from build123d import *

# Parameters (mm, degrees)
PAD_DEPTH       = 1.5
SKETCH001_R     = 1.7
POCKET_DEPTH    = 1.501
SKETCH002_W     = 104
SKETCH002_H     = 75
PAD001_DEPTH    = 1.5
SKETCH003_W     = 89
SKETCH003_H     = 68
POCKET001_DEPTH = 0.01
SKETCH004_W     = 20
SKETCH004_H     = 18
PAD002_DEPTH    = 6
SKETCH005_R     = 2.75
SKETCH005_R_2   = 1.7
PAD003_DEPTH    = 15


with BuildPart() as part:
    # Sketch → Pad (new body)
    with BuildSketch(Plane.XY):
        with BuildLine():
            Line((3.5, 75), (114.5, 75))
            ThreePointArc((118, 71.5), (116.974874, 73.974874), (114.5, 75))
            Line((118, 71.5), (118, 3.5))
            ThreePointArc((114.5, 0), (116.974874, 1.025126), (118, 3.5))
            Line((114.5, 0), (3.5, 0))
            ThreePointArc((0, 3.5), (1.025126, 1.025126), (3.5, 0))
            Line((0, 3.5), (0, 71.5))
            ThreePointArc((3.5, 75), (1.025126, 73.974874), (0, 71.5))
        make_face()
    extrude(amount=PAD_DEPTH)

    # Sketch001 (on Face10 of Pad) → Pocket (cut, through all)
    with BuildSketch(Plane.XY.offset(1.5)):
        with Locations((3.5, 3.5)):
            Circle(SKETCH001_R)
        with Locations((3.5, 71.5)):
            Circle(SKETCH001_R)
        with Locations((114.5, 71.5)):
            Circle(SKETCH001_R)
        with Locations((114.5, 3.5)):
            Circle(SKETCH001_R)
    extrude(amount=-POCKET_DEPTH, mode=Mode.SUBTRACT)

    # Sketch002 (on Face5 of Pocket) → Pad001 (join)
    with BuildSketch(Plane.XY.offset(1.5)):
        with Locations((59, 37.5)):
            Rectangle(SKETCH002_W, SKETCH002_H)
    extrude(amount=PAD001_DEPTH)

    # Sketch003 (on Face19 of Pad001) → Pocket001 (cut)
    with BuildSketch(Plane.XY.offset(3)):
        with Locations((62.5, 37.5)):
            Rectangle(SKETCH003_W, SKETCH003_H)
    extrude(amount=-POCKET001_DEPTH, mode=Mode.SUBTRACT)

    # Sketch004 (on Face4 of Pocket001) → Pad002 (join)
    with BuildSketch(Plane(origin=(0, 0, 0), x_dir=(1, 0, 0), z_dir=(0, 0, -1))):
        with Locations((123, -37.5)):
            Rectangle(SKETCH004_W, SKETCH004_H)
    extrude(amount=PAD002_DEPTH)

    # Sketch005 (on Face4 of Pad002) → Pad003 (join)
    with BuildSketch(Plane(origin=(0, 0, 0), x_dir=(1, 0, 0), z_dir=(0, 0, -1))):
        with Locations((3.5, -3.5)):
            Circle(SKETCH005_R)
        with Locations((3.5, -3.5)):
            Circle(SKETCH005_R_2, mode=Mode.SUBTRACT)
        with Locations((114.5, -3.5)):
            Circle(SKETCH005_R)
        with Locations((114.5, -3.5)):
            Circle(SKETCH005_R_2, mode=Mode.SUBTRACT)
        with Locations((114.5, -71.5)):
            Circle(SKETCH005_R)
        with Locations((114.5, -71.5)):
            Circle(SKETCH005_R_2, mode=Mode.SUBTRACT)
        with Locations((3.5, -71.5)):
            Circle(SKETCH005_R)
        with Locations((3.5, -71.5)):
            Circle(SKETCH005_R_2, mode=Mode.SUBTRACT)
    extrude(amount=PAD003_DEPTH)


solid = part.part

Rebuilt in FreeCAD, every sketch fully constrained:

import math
import FreeCAD as App
import Part
import Sketcher
Q = App.Units.Quantity


def add_polygon(sketch, points):
    """Adds a closed chain of lines whose ends are joined by coincident constraints."""
    first, n = sketch.GeometryCount, len(points)
    for a, b in zip(points, points[1:] + points[:1]):
        sketch.addGeometry(Part.LineSegment(App.Vector(*a, 0), App.Vector(*b, 0)), False)
    for i in range(n):
        sketch.addConstraint(Sketcher.Constraint("Coincident", first + i, 2, first + (i + 1) % n, 1))

doc = App.newDocument("Part")
body = doc.addObject("PartDesign::Body", "Body")

sketch1 = body.newObject("Sketcher::SketchObject", "Sketch")
sketch1.AttachmentSupport = (doc.getObject("XY_Plane"), [""])
sketch1.MapMode = "FlatFace"
sketch1.addGeometry([
    Part.LineSegment(App.Vector(114.5, 75, 0), App.Vector(3.5, 75, 0)),
    Part.ArcOfCircle(Part.Circle(App.Vector(3.5, 71.5, 0), App.Vector(0, 0, 1), 3.5), math.radians(90), math.radians(180)),
    Part.LineSegment(App.Vector(0, 71.5, 0), App.Vector(0, 3.5, 0)),
    Part.ArcOfCircle(Part.Circle(App.Vector(3.5, 3.5, 0), App.Vector(0, 0, 1), 3.5), math.radians(180), math.radians(270)),
    Part.LineSegment(App.Vector(3.5, 0, 0), App.Vector(114.5, 0, 0)),
    Part.ArcOfCircle(Part.Circle(App.Vector(114.5, 3.5, 0), App.Vector(0, 0, 1), 3.5), math.radians(-90), math.radians(0)),
    Part.LineSegment(App.Vector(118, 3.5, 0), App.Vector(118, 71.5, 0)),
    Part.ArcOfCircle(Part.Circle(App.Vector(114.5, 71.5, 0), App.Vector(0, 0, 1), 3.5), math.radians(0), math.radians(90)),
], False)
sketch1.addConstraint([
    Sketcher.Constraint("Tangent", 0, 2, 1, 1),
    Sketcher.Constraint("Tangent", 1, 2, 2, 1),
    Sketcher.Constraint("Tangent", 2, 2, 3, 1),
    Sketcher.Constraint("Tangent", 3, 2, 4, 1),
    Sketcher.Constraint("Tangent", 4, 2, 5, 1),
    Sketcher.Constraint("Tangent", 5, 2, 6, 1),
    Sketcher.Constraint("Tangent", 6, 2, 7, 1),
    Sketcher.Constraint("Tangent", 7, 2, 0, 1),
    Sketcher.Constraint("Horizontal", 0),
    Sketcher.Constraint("Vertical", 2),
    Sketcher.Constraint("Horizontal", 4),
    Sketcher.Constraint("Vertical", 6),
    Sketcher.Constraint("Equal", 1, 3),
    Sketcher.Constraint("Equal", 3, 5),
    Sketcher.Constraint("Equal", 5, 7),
    Sketcher.Constraint("PointOnObject", 1, 2, -2),
    Sketcher.Constraint("PointOnObject", 3, 2, -1),
    Sketcher.Constraint("Radius", 1, Q("3.499999 mm")),
    Sketcher.Constraint("DistanceX", 0, 2, 0, 1, Q("111 mm")),
    Sketcher.Constraint("DistanceY", 2, 2, 2, 1, Q("68 mm")),
])
pad1 = body.newObject("PartDesign::Pad", "Pad")
pad1.Profile = sketch1
pad1.Length = 1.5

sketch2 = body.newObject("Sketcher::SketchObject", "Sketch001")
sketch2.AttachmentSupport = (doc.getObject("XY_Plane"), [""])
sketch2.MapMode = "FlatFace"
sketch2.AttachmentOffset = App.Placement(App.Vector(0, 0, 1.5), App.Rotation())
sketch2.addGeometry([
    Part.Circle(App.Vector(3.5, 3.5, 0), App.Vector(0, 0, 1), 1.7),
    Part.Circle(App.Vector(3.5, 71.5, 0), App.Vector(0, 0, 1), 1.7),
    Part.Circle(App.Vector(114.5, 71.5, 0), App.Vector(0, 0, 1), 1.7),
    Part.Circle(App.Vector(114.5, 3.5, 0), App.Vector(0, 0, 1), 1.7),
], False)
sketch2.addConstraint([
    Sketcher.Constraint("Equal", 0, 1),
    Sketcher.Constraint("Equal", 1, 2),
    Sketcher.Constraint("Equal", 2, 3),
    Sketcher.Constraint("Horizontal", 1, 3, 2, 3),
    Sketcher.Constraint("Horizontal", 0, 3, 3, 3),
    Sketcher.Constraint("Vertical", 0, 3, 1, 3),
    Sketcher.Constraint("Vertical", 2, 3, 3, 3),
    Sketcher.Constraint("Diameter", 0, Q("3.4 mm")),
    Sketcher.Constraint("DistanceY", 0, 3, 1, 3, Q("68 mm")),
    Sketcher.Constraint("DistanceX", 1, 3, 2, 3, Q("111 mm")),
    Sketcher.Constraint("DistanceX", -1, 1, 0, 3, Q("3.5 mm")),
    Sketcher.Constraint("DistanceY", -1, 1, 0, 3, Q("3.5 mm")),
])
pocket1 = body.newObject("PartDesign::Pocket", "Pocket")
pocket1.Profile = sketch2
pocket1.Type = "ThroughAll"

sketch3 = body.newObject("Sketcher::SketchObject", "Sketch002")
sketch3.AttachmentSupport = (doc.getObject("XY_Plane"), [""])
sketch3.MapMode = "FlatFace"
sketch3.AttachmentOffset = App.Placement(App.Vector(0, 0, 1.5), App.Rotation())
add_polygon(sketch3, [(7, 75), (7, 0), (111, 0), (111, 75)])
sketch3.addConstraint([
    Sketcher.Constraint("Vertical", 0),
    Sketcher.Constraint("Horizontal", 1),
    Sketcher.Constraint("Vertical", 2),
    Sketcher.Constraint("Horizontal", 3),
    Sketcher.Constraint("PointOnObject", 0, 2, -1),
    Sketcher.Constraint("DistanceX", 1, 1, 1, 2, Q("104 mm")),
    Sketcher.Constraint("DistanceY", 0, 2, 0, 1, Q("75 mm")),
    Sketcher.Constraint("DistanceX", -1, 1, 0, 2, Q("7 mm")),
])
pad2 = body.newObject("PartDesign::Pad", "Pad001")
pad2.Profile = sketch3
pad2.Length = 1.5

sketch4 = body.newObject("Sketcher::SketchObject", "Sketch003")
sketch4.AttachmentSupport = (doc.getObject("XY_Plane"), [""])
sketch4.MapMode = "FlatFace"
sketch4.AttachmentOffset = App.Placement(App.Vector(0, 0, 3), App.Rotation())
add_polygon(sketch4, [(18, 72), (18, 4), (107, 4), (107, 72)])
sketch4.addConstraint([
    Sketcher.Constraint("Vertical", 0),
    Sketcher.Constraint("Horizontal", 1),
    Sketcher.Constraint("Vertical", 2),
    Sketcher.Constraint("Horizontal", 3),
    Sketcher.Constraint("DistanceX", 1, 1, 1, 2, Q("89 mm")),
    Sketcher.Constraint("DistanceY", 0, 2, 0, 1, Q("68 mm")),
    Sketcher.Constraint("DistanceX", -1, 1, 0, 2, Q("18 mm")),
    Sketcher.Constraint("DistanceY", -1, 1, 0, 2, Q("3.5 mm")),
])
pocket2 = body.newObject("PartDesign::Pocket", "Pocket001")
pocket2.Profile = sketch4
pocket2.Length = 0.01

sketch5 = body.newObject("Sketcher::SketchObject", "Sketch004")
sketch5.AttachmentSupport = (doc.getObject("XY_Plane"), [""])
sketch5.MapMode = "FlatFace"
add_polygon(sketch5, [(113, 28), (113, 46), (133, 46), (133, 28)])
sketch5.addConstraint([
    Sketcher.Constraint("Vertical", 0),
    Sketcher.Constraint("Horizontal", 1),
    Sketcher.Constraint("Vertical", 2),
    Sketcher.Constraint("Horizontal", 3),
    Sketcher.Constraint("DistanceX", 1, 1, 1, 2, Q("20 mm")),
    Sketcher.Constraint("DistanceY", 0, 1, 0, 2, Q("18 mm")),
    Sketcher.Constraint("DistanceX", -1, 1, 0, 2, Q("113 mm")),
    Sketcher.Constraint("DistanceY", -1, 1, 0, 2, Q("46.5 mm")),
])
pad3 = body.newObject("PartDesign::Pad", "Pad002")
pad3.Profile = sketch5
pad3.Length = 6
pad3.Reversed = True

sketch6 = body.newObject("Sketcher::SketchObject", "Sketch005")
sketch6.AttachmentSupport = (doc.getObject("XY_Plane"), [""])
sketch6.MapMode = "FlatFace"
sketch6.addGeometry([
    Part.Circle(App.Vector(3.5, 3.5, 0), App.Vector(0, 0, 1), 2.8),
    Part.Circle(App.Vector(3.5, 3.5, 0), App.Vector(0, 0, 1), 1.7),
    Part.Circle(App.Vector(114.5, 3.5, 0), App.Vector(0, 0, 1), 2.8),
    Part.Circle(App.Vector(114.5, 3.5, 0), App.Vector(0, 0, 1), 1.7),
    Part.Circle(App.Vector(114.5, 71.5, 0), App.Vector(0, 0, 1), 2.8),
    Part.Circle(App.Vector(114.5, 71.5, 0), App.Vector(0, 0, 1), 1.7),
    Part.Circle(App.Vector(3.5, 71.5, 0), App.Vector(0, 0, 1), 2.8),
    Part.Circle(App.Vector(3.5, 71.5, 0), App.Vector(0, 0, 1), 1.7),
], False)
sketch6.addConstraint([
    Sketcher.Constraint("Coincident", 1, 3, 0, 3),
    Sketcher.Constraint("Coincident", 3, 3, 2, 3),
    Sketcher.Constraint("Coincident", 5, 3, 4, 3),
    Sketcher.Constraint("Coincident", 7, 3, 6, 3),
    Sketcher.Constraint("Equal", 0, 2),
    Sketcher.Constraint("Equal", 1, 3),
    Sketcher.Constraint("Equal", 2, 4),
    Sketcher.Constraint("Equal", 3, 5),
    Sketcher.Constraint("Equal", 4, 6),
    Sketcher.Constraint("Equal", 5, 7),
    Sketcher.Constraint("Horizontal", 1, 3, 2, 3),
    Sketcher.Constraint("Horizontal", 5, 3, 6, 3),
    Sketcher.Constraint("Vertical", 3, 3, 4, 3),
    Sketcher.Constraint("Vertical", 1, 3, 6, 3),
    Sketcher.Constraint("Diameter", 0, Q("5.5 mm")),
    Sketcher.Constraint("Diameter", 1, Q("3.4 mm")),
    Sketcher.Constraint("DistanceX", 0, 3, 2, 3, Q("111 mm")),
    Sketcher.Constraint("DistanceY", 2, 3, 4, 3, Q("68 mm")),
    Sketcher.Constraint("DistanceX", -1, 1, 0, 3, Q("3.5 mm")),
    Sketcher.Constraint("DistanceY", -1, 1, 0, 3, Q("3.5 mm")),
])
pad4 = body.newObject("PartDesign::Pad", "Pad003")
pad4.Profile = sketch6
pad4.Length = 15
pad4.Reversed = True

doc.recompute()
